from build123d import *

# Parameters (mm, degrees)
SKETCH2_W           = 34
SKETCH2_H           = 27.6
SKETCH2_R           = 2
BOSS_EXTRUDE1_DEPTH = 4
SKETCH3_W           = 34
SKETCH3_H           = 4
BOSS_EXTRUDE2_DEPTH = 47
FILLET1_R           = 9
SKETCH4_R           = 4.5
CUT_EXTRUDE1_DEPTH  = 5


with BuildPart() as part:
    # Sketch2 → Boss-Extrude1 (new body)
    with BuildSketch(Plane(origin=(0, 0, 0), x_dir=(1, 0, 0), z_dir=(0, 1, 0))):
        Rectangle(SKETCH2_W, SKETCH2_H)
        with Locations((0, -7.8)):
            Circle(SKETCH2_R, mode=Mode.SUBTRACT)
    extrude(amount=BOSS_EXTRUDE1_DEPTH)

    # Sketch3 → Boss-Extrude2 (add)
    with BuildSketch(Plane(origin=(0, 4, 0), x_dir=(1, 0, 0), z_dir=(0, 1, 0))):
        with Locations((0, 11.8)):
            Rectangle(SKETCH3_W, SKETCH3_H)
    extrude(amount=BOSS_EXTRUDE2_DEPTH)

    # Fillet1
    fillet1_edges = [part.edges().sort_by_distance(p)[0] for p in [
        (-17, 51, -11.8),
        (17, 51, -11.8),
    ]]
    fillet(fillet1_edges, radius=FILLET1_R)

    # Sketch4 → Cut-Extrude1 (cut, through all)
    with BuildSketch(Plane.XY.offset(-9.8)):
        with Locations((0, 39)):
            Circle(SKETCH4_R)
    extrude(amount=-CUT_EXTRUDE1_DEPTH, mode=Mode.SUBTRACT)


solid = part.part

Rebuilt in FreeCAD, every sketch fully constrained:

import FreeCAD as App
import Part
import Sketcher
Q = App.Units.Quantity


def edges_at(feature, points):
    """Names of the edges that pass closest to the given points."""
    edges = feature.Shape.Edges
    near = lambda p: min(range(len(edges)), key=lambda i: edges[i].distToShape(Part.Vertex(*p))[0])
    return sorted({f"Edge{near(p) + 1}" for p in points})


def add_polygon(sketch, points):
    """Adds a closed chain of lines whose ends are joined by coincident constraints."""
    first, n = sketch.GeometryCount, len(points)
    for a, b in zip(points, points[1:] + points[:1]):
        sketch.addGeometry(Part.LineSegment(App.Vector(*a, 0), App.Vector(*b, 0)), False)
    for i in range(n):
        sketch.addConstraint(Sketcher.Constraint("Coincident", first + i, 2, first + (i + 1) % n, 1))

doc = App.newDocument("Part")
body = doc.addObject("PartDesign::Body", "Body")

# Sketch on XZ plane
sketch1 = body.newObject("Sketcher::SketchObject", "Sketch")
sketch1.AttachmentSupport = (doc.getObject("XZ_Plane"), [""])
sketch1.MapMode = "FlatFace"
add_polygon(sketch1, [(-17, -13.8), (-17, 13.8), (17, 13.8), (17, -13.8)])  # lines 0-3
sketch1.addGeometry(Part.Circle(App.Vector(0, 7.8, 0), App.Vector(0, 0, 1), 2), False)  # 4
sketch1.addConstraint(Sketcher.Constraint("Vertical", 0))
sketch1.addConstraint(Sketcher.Constraint("Horizontal", 1))
sketch1.addConstraint(Sketcher.Constraint("Vertical", 2))
sketch1.addConstraint(Sketcher.Constraint("Horizontal", 3))
sketch1.addConstraint(Sketcher.Constraint("Symmetric", 0, 2, 2, 2, -1, 1))
sketch1.addConstraint(Sketcher.Constraint("PointOnObject", 4, 3, -2))
sketch1.addConstraint(Sketcher.Constraint("Diameter", 4, Q("4 mm")))
sketch1.addConstraint(Sketcher.Constraint("DistanceX", 1, 1, 1, 2, Q("34 mm")))
sketch1.addConstraint(Sketcher.Constraint("DistanceY", 0, 1, 0, 2, Q("27.6 mm")))
sketch1.addConstraint(Sketcher.Constraint("DistanceY", 4, 3, 0, 2, Q("6 mm")))
pad1 = body.newObject("PartDesign::Pad", "Pad")
pad1.Profile = sketch1
pad1.Length = 4
pad1.Reversed = True

# Sketch on XZ plane
sketch2 = body.newObject("Sketcher::SketchObject", "Sketch001")
sketch2.AttachmentSupport = (doc.getObject("XZ_Plane"), [""])
sketch2.MapMode = "FlatFace"
sketch2.AttachmentOffset = App.Placement(App.Vector(0, 0, -4), App.Rotation())
add_polygon(sketch2, [(-17, -13.8), (-17, -9.8), (17, -9.8), (17, -13.8)])  # lines 0-3
sketch2.addConstraint(Sketcher.Constraint("Vertical", 0))
sketch2.addConstraint(Sketcher.Constraint("Horizontal", 1))
sketch2.addConstraint(Sketcher.Constraint("Vertical", 2))
sketch2.addConstraint(Sketcher.Constraint("Horizontal", 3))
sketch2.addConstraint(Sketcher.Constraint("DistanceX", 1, 1, 1, 2, Q("34 mm")))
sketch2.addConstraint(Sketcher.Constraint("DistanceY", 0, 1, 0, 2, Q("4 mm")))
sketch2.addConstraint(Sketcher.Constraint("DistanceX", 0, 2, -1, 1, Q("17 mm")))
sketch2.addConstraint(Sketcher.Constraint("DistanceY", 0, 2, -1, 1, Q("9.8 mm")))
pad2 = body.newObject("PartDesign::Pad", "Pad001")
pad2.Profile = sketch2
pad2.Length = 47
pad2.Reversed = True
doc.recompute()

fillet = body.newObject("PartDesign::Fillet", "Fillet")
fillet.Base = (pad2, edges_at(pad2, [(-17, 51, -11.8), (17, 51, -11.8)]))
fillet.Radius = 9

# Sketch on XY plane
sketch3 = body.newObject("Sketcher::SketchObject", "Sketch002")
sketch3.AttachmentSupport = (doc.getObject("XY_Plane"), [""])
sketch3.MapMode = "FlatFace"
sketch3.AttachmentOffset = App.Placement(App.Vector(0, 0, -9.8), App.Rotation())
sketch3.addGeometry(Part.Circle(App.Vector(0, 39, 0), App.Vector(0, 0, 1), 4.5), False)
sketch3.addConstraint(Sketcher.Constraint("PointOnObject", 0, 3, -2))
sketch3.addConstraint(Sketcher.Constraint("Diameter", 0, Q("9 mm")))
sketch3.addConstraint(Sketcher.Constraint("DistanceY", -1, 1, 0, 3, Q("39 mm")))
pocket1 = body.newObject("PartDesign::Pocket", "Pocket")
pocket1.Profile = sketch3
pocket1.Type = "ThroughAll"

doc.recompute()
